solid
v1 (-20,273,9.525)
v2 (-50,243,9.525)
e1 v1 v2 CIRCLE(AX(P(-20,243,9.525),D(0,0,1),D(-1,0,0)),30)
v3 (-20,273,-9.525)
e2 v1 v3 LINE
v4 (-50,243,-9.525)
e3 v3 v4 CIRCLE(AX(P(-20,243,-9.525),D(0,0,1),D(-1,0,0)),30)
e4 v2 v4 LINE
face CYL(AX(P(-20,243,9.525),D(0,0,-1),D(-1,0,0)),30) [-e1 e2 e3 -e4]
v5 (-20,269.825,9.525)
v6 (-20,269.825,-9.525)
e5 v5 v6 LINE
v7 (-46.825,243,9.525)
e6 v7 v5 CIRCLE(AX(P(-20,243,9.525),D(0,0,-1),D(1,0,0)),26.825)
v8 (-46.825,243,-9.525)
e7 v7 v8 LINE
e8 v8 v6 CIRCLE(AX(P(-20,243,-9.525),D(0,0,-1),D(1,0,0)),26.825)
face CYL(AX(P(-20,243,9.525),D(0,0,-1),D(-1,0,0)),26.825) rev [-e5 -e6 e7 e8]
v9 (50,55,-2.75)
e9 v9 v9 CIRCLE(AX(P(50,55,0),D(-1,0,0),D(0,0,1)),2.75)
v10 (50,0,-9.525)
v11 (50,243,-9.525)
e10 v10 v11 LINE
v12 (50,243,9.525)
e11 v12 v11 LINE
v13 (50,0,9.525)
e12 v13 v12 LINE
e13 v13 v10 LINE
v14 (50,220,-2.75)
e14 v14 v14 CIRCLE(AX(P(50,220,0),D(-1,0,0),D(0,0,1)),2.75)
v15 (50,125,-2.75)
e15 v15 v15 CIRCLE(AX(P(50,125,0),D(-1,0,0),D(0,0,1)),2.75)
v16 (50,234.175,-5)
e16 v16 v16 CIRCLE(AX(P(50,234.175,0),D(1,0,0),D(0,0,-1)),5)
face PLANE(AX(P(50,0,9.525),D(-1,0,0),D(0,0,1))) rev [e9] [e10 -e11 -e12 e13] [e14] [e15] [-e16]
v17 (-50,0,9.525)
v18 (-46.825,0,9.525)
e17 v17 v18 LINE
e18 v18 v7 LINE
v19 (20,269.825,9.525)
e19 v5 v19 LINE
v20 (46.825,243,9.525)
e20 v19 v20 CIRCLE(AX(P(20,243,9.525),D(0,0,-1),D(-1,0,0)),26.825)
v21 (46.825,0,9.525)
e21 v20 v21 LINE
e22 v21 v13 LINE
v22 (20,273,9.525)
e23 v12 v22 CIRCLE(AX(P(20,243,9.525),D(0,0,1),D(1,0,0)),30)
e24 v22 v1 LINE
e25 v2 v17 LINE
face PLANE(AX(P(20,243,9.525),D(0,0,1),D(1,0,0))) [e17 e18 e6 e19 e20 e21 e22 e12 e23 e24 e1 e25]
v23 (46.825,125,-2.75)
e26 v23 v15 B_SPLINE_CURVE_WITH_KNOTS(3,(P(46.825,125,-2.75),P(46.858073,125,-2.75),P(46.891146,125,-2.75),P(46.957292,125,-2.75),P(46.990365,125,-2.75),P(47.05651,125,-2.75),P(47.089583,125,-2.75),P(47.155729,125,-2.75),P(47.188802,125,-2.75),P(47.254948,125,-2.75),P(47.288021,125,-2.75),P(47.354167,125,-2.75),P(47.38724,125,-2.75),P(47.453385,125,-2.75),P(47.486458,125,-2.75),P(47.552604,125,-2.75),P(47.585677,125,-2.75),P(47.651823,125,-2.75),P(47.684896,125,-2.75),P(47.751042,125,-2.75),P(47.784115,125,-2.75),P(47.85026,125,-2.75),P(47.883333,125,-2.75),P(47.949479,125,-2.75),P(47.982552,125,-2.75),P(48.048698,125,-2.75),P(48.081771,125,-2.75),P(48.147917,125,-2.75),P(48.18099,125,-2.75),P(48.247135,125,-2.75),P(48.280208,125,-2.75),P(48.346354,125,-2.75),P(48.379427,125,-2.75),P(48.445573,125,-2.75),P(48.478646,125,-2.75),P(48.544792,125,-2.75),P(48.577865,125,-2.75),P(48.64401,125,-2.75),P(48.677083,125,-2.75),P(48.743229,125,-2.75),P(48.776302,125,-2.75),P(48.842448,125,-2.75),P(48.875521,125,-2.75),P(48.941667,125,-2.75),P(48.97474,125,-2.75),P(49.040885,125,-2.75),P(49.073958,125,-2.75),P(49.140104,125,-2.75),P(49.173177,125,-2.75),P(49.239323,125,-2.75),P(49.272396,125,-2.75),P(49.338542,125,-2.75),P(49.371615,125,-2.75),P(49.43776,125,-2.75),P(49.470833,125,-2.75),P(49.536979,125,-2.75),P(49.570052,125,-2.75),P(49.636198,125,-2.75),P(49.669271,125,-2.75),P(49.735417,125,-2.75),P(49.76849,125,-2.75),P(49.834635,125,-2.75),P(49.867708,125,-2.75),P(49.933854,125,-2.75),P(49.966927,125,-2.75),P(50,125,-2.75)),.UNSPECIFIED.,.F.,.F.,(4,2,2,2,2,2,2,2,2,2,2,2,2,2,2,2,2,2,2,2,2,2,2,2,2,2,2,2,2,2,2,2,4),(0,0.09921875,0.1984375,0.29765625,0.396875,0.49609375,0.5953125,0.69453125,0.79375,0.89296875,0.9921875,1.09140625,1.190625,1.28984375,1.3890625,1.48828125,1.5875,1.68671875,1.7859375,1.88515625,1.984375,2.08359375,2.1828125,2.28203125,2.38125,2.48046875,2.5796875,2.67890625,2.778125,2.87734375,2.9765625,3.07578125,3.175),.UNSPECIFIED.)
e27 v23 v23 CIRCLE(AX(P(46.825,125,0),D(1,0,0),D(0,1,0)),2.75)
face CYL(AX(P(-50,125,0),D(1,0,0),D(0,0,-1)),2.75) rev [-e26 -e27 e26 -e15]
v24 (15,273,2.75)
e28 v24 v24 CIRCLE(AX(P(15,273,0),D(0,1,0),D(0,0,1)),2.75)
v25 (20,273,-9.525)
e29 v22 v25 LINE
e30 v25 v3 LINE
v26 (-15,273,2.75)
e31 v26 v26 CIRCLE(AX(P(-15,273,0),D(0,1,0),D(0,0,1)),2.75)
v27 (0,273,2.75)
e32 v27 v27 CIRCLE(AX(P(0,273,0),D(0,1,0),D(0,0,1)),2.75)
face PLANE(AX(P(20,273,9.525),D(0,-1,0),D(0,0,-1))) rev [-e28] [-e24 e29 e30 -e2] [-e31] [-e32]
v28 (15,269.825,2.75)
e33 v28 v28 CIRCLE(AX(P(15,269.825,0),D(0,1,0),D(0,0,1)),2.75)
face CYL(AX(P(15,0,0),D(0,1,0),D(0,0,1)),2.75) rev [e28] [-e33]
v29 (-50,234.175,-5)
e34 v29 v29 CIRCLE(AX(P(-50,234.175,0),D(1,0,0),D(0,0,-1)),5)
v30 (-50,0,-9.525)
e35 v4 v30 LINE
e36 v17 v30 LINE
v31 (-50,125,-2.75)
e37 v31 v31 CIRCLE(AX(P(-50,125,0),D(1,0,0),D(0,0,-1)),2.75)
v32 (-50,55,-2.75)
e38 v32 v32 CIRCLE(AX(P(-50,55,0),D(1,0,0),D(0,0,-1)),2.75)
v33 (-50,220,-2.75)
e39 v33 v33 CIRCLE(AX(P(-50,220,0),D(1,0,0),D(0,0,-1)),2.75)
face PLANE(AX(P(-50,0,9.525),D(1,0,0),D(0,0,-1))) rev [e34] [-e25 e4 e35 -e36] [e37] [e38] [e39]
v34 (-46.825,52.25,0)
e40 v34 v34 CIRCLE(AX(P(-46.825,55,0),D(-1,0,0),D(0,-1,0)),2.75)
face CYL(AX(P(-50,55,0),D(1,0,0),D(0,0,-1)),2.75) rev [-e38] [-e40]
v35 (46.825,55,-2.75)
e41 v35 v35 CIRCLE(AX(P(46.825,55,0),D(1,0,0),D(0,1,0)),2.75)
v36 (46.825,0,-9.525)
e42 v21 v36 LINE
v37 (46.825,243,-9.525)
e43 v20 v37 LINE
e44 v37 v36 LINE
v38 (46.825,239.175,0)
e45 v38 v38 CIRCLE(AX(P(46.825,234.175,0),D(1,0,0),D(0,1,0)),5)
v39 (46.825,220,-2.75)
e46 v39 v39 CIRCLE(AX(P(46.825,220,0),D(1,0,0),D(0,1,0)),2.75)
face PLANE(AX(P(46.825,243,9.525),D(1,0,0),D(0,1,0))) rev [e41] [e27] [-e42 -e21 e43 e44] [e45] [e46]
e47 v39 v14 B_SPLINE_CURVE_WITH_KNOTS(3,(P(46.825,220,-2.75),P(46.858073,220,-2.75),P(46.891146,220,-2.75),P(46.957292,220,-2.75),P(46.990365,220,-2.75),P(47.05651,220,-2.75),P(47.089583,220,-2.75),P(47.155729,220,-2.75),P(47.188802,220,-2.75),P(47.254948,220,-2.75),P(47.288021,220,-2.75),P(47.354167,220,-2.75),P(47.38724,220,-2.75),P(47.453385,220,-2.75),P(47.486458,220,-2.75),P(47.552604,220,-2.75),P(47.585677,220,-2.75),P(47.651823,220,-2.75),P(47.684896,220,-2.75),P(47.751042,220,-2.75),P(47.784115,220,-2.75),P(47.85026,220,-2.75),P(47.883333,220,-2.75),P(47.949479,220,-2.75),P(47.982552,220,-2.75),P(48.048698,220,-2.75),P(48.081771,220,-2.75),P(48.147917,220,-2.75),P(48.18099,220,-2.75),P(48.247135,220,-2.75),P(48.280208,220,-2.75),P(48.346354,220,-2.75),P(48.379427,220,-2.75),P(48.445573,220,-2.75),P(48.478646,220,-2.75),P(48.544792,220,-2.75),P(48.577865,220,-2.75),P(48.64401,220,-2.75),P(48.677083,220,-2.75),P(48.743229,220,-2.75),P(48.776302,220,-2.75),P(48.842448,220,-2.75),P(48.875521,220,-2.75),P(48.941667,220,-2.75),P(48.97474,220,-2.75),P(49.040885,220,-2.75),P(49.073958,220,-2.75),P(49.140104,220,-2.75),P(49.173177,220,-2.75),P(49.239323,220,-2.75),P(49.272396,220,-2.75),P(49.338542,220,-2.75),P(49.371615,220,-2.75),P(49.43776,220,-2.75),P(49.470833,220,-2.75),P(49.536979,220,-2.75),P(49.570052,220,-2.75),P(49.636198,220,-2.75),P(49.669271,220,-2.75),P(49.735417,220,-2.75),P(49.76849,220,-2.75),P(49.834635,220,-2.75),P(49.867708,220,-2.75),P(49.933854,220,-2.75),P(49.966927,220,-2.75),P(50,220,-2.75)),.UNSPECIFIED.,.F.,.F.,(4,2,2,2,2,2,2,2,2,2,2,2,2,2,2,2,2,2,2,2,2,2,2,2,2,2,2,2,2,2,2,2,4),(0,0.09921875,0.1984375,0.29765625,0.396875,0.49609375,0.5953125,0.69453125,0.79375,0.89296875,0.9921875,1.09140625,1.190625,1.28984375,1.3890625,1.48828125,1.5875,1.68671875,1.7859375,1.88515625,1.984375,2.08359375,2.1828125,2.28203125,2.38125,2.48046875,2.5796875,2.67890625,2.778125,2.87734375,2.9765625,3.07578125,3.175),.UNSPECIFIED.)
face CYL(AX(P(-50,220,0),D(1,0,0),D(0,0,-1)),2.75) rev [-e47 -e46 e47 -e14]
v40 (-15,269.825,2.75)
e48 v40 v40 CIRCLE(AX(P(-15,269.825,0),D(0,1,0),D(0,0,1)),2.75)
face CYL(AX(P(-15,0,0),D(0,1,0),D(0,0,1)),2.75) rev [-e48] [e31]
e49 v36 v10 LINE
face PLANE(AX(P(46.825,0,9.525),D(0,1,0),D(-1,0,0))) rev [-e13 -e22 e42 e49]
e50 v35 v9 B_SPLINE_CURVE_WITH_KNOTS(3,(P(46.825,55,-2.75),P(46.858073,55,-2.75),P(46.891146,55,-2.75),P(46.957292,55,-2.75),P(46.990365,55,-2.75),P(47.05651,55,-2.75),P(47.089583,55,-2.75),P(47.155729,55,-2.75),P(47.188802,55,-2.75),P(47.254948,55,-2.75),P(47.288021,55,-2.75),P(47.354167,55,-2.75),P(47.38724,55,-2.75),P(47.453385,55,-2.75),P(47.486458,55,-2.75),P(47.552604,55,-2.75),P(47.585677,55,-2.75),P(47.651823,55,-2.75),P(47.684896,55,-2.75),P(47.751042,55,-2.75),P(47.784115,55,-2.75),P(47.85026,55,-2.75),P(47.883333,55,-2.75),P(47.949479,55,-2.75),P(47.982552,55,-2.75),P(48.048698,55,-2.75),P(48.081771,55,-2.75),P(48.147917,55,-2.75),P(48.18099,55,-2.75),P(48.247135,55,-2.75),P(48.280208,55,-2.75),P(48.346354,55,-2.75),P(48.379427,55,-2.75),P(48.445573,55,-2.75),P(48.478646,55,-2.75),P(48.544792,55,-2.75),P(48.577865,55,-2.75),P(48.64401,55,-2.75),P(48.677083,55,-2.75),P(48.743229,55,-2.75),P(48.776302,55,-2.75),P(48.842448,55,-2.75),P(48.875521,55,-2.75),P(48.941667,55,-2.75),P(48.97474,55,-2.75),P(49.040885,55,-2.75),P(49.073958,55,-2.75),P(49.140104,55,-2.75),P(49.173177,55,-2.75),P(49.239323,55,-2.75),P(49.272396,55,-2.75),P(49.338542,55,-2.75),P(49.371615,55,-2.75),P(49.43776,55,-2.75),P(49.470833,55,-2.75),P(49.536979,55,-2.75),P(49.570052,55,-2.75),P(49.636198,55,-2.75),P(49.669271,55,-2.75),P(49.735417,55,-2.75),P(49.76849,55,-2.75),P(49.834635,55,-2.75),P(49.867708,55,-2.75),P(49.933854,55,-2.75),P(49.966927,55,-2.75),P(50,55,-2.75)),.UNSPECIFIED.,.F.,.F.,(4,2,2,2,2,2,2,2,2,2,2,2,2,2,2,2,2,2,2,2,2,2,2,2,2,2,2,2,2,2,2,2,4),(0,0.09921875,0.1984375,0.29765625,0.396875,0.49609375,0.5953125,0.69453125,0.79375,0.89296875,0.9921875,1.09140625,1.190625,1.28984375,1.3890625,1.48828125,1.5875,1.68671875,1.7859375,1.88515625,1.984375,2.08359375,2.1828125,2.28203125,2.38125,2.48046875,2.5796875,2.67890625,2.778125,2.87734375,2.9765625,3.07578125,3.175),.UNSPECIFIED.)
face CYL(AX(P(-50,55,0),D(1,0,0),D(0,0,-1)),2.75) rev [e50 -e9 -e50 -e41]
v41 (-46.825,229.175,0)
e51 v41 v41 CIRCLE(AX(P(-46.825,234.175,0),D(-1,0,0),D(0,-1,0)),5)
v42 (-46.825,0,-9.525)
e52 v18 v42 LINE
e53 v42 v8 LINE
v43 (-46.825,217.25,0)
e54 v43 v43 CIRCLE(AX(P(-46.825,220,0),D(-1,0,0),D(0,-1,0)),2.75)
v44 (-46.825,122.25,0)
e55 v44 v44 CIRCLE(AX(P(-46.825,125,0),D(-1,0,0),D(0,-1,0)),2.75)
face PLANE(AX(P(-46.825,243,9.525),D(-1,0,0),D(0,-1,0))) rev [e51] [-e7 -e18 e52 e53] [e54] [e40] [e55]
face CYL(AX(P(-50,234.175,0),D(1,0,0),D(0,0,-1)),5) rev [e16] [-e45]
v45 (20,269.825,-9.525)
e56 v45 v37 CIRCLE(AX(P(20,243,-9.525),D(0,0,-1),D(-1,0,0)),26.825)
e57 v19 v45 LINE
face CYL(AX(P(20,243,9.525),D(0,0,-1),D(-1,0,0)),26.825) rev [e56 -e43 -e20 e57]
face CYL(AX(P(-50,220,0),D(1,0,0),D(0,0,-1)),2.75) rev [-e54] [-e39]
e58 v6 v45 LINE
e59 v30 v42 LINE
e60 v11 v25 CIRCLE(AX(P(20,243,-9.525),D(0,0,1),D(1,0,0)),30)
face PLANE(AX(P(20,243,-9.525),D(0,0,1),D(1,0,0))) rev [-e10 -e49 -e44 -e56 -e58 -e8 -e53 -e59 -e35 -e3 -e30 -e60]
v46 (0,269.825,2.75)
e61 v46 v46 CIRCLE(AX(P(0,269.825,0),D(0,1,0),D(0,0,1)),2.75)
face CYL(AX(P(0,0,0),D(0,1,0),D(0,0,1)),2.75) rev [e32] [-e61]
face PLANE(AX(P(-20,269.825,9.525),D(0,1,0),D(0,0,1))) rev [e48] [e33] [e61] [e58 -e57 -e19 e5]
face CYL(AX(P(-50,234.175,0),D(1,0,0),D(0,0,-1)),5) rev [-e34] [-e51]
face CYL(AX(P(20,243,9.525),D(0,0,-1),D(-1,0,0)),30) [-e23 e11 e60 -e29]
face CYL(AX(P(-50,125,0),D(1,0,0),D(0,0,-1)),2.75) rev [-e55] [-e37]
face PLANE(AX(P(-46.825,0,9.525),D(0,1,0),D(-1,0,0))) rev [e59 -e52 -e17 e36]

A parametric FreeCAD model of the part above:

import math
import FreeCAD as App
import Part
import Sketcher

doc = App.newDocument("Part")
params = doc.addObject("Spreadsheet::Sheet", "Params")
for row, (alias, value) in enumerate([
    ("sketch1_radius", "30 mm"),
    ("sketch1_width", "40 mm"),
    ("sketch1_height", "243 mm"),
    ("pad1_length", "19.05 mm"),
    ("sketch2_diameter", "5.5 mm"),
    ("sketch3_diameter", "5.5 mm"),
    ("sketch4_diameter", "10 mm"),
], start=1):
    params.set(f"A{row}", alias)
    params.set(f"B{row}", "=" + value)
    params.setAlias(f"B{row}", alias)

body = doc.addObject("PartDesign::Body", "Body")

# Sketch on XY plane
sketch1 = body.newObject("Sketcher::SketchObject", "Sketch")
sketch1.AttachmentSupport = (doc.getObject("XY_Plane"), [""])
sketch1.MapMode = "FlatFace"
sketch1.addGeometry(Part.LineSegment(App.Vector(50, 0, 0), App.Vector(50, 243, 0)), False)
sketch1.addGeometry(Part.ArcOfCircle(Part.Circle(App.Vector(20, 243, 0), App.Vector(0, 0, 1), 30), math.radians(0), math.radians(90)), False)
sketch1.addGeometry(Part.LineSegment(App.Vector(20, 273, 0), App.Vector(-20, 273, 0)), False)
sketch1.addGeometry(Part.ArcOfCircle(Part.Circle(App.Vector(-20, 243, 0), App.Vector(0, 0, 1), 30), math.radians(90), math.radians(180)), False)
sketch1.addGeometry(Part.LineSegment(App.Vector(-50, 243, 0), App.Vector(-50, 0, 0)), False)
sketch1.addGeometry(Part.LineSegment(App.Vector(-50, 0, 0), App.Vector(-46.8, 0, 0)), False)
sketch1.addGeometry(Part.LineSegment(App.Vector(-46.8, 0, 0), App.Vector(-46.8, 243, 0)), False)
sketch1.addGeometry(Part.ArcOfCircle(Part.Circle(App.Vector(-20, 243, 0), App.Vector(0, 0, 1), 26.8), math.radians(90), math.radians(180)), False)
sketch1.addGeometry(Part.LineSegment(App.Vector(-20, 269.8, 0), App.Vector(20, 269.8, 0)), False)
sketch1.addGeometry(Part.ArcOfCircle(Part.Circle(App.Vector(20, 243, 0), App.Vector(0, 0, 1), 26.8), math.radians(0), math.radians(90)), False)
sketch1.addGeometry(Part.LineSegment(App.Vector(46.8, 243, 0), App.Vector(46.8, 0, 0)), False)
sketch1.addGeometry(Part.LineSegment(App.Vector(46.8, 0, 0), App.Vector(50, 0, 0)), False)
sketch1.addConstraint(Sketcher.Constraint("Tangent", 0, 2, 1, 1))
sketch1.addConstraint(Sketcher.Constraint("Tangent", 1, 2, 2, 1))
sketch1.addConstraint(Sketcher.Constraint("Tangent", 2, 2, 3, 1))
sketch1.addConstraint(Sketcher.Constraint("Tangent", 3, 2, 4, 1))
sketch1.addConstraint(Sketcher.Constraint("Coincident", 4, 2, 5, 1))
sketch1.addConstraint(Sketcher.Constraint("Coincident", 5, 2, 6, 1))
sketch1.addConstraint(Sketcher.Constraint("Tangent", 6, 2, 7, 2))
sketch1.addConstraint(Sketcher.Constraint("Tangent", 7, 1, 8, 1))
sketch1.addConstraint(Sketcher.Constraint("Tangent", 8, 2, 9, 2))
sketch1.addConstraint(Sketcher.Constraint("Tangent", 9, 1, 10, 1))
sketch1.addConstraint(Sketcher.Constraint("Coincident", 10, 2, 11, 1))
sketch1.addConstraint(Sketcher.Constraint("Coincident", 11, 2, 0, 1))
sketch1.addConstraint(Sketcher.Constraint("Vertical", 0))
sketch1.addConstraint(Sketcher.Constraint("Horizontal", 2))
sketch1.addConstraint(Sketcher.Constraint("Vertical", 4))
sketch1.addConstraint(Sketcher.Constraint("Horizontal", 5))
sketch1.addConstraint(Sketcher.Constraint("Vertical", 6))
sketch1.addConstraint(Sketcher.Constraint("Horizontal", 8))
sketch1.addConstraint(Sketcher.Constraint("Vertical", 10))
sketch1.addConstraint(Sketcher.Constraint("Horizontal", 11))
sketch1.addConstraint(Sketcher.Constraint("Coincident", 7, 3, 3, 3))
sketch1.addConstraint(Sketcher.Constraint("Coincident", 9, 3, 1, 3))
sketch1.addConstraint(Sketcher.Constraint("Equal", 1, 3))
sketch1.addConstraint(Sketcher.Constraint("Symmetric", 5, 2, 10, 2, -1, 1))
sketch1.addConstraint(Sketcher.Constraint("PointOnObject", 4, 2, -1))
sketch1.addConstraint(Sketcher.Constraint("Radius", 1, 30.0))
sketch1.addConstraint(Sketcher.Constraint("DistanceX", 2, 2, 2, 1, 40.0))
sketch1.addConstraint(Sketcher.Constraint("DistanceY", 0, 1, 0, 2, 243.0))
sketch1.addConstraint(Sketcher.Constraint("Radius", 7, 26.825))
sketch1.setExpression("Constraints[25]", "Params.sketch1_radius")
sketch1.setExpression("Constraints[26]", "Params.sketch1_width")
sketch1.setExpression("Constraints[27]", "Params.sketch1_height")
pad1 = body.newObject("PartDesign::Pad", "Pad")
pad1.Profile = sketch1
pad1.setExpression("Length", "Params.pad1_length")
pad1.Midplane = True

# Sketch on XZ plane
sketch2 = body.newObject("Sketcher::SketchObject", "Sketch001")
sketch2.AttachmentSupport = (doc.getObject("XZ_Plane"), [""])
sketch2.MapMode = "FlatFace"
sketch2.AttachmentOffset = App.Placement(App.Vector(0, 0, -273), App.Rotation())
sketch2.addGeometry(Part.Circle(App.Vector(0, 0, 0), App.Vector(0, 0, 1), 2.8), False)
sketch2.addGeometry(Part.Circle(App.Vector(-15, 0, 0), App.Vector(0, 0, 1), 2.8), False)
sketch2.addGeometry(Part.Circle(App.Vector(15, 0, 0), App.Vector(0, 0, 1), 2.8), False)
sketch2.addConstraint(Sketcher.Constraint("Coincident", 0, 3, -1, 1))
sketch2.addConstraint(Sketcher.Constraint("Equal", 0, 1))
sketch2.addConstraint(Sketcher.Constraint("Equal", 1, 2))
sketch2.addConstraint(Sketcher.Constraint("Symmetric", 1, 3, 2, 3, -1, 1))
sketch2.addConstraint(Sketcher.Constraint("PointOnObject", 1, 3, -1))
sketch2.addConstraint(Sketcher.Constraint("Diameter", 0, 5.5))
sketch2.addConstraint(Sketcher.Constraint("DistanceX", 1, 3, -1, 1, 15.0))
sketch2.setExpression("Constraints[5]", "Params.sketch2_diameter")
pocket1 = body.newObject("PartDesign::Pocket", "Pocket")
pocket1.Profile = sketch2
pocket1.Type = "ThroughAll"
pocket1.Reversed = True

# Sketch on YZ plane
sketch3 = body.newObject("Sketcher::SketchObject", "Sketch002")
sketch3.AttachmentSupport = (doc.getObject("YZ_Plane"), [""])
sketch3.MapMode = "FlatFace"
sketch3.AttachmentOffset = App.Placement(App.Vector(0, 0, 50), App.Rotation())
sketch3.addGeometry(Part.Circle(App.Vector(220, 0, 0), App.Vector(0, 0, 1), 2.8), False)
sketch3.addGeometry(Part.Circle(App.Vector(125, 0, 0), App.Vector(0, 0, 1), 2.8), False)
sketch3.addGeometry(Part.Circle(App.Vector(55, 0, 0), App.Vector(0, 0, 1), 2.8), False)
sketch3.addConstraint(Sketcher.Constraint("Equal", 0, 1))
sketch3.addConstraint(Sketcher.Constraint("Equal", 1, 2))
sketch3.addConstraint(Sketcher.Constraint("PointOnObject", 0, 3, -1))
sketch3.addConstraint(Sketcher.Constraint("PointOnObject", 1, 3, -1))
sketch3.addConstraint(Sketcher.Constraint("PointOnObject", 2, 3, -1))
sketch3.addConstraint(Sketcher.Constraint("Diameter", 0, 5.5))
sketch3.addConstraint(Sketcher.Constraint("DistanceX", -1, 1, 0, 3, 220.0))
sketch3.addConstraint(Sketcher.Constraint("DistanceX", -1, 1, 1, 3, 125.0))
sketch3.addConstraint(Sketcher.Constraint("DistanceX", -1, 1, 2, 3, 55.0))
sketch3.setExpression("Constraints[5]", "Params.sketch3_diameter")
pocket2 = body.newObject("PartDesign::Pocket", "Pocket001")
pocket2.Profile = sketch3
pocket2.Type = "ThroughAll"
pocket2.Midplane = True

# Sketch on YZ plane
sketch4 = body.newObject("Sketcher::SketchObject", "Sketch003")
sketch4.AttachmentSupport = (doc.getObject("YZ_Plane"), [""])
sketch4.MapMode = "FlatFace"
sketch4.AttachmentOffset = App.Placement(App.Vector(0, 0, 50), App.Rotation())
sketch4.addGeometry(Part.Circle(App.Vector(234, 0, 0), App.Vector(0, 0, 1), 5), False)
sketch4.addConstraint(Sketcher.Constraint("PointOnObject", 0, 3, -1))
sketch4.addConstraint(Sketcher.Constraint("Diameter", 0, 10.0))
sketch4.addConstraint(Sketcher.Constraint("DistanceX", -1, 1, 0, 3, 234.175))
sketch4.setExpression("Constraints[1]", "Params.sketch4_diameter")
pocket3 = body.newObject("PartDesign::Pocket", "Pocket002")
pocket3.Profile = sketch4
pocket3.Type = "ThroughAll"

doc.recompute()
